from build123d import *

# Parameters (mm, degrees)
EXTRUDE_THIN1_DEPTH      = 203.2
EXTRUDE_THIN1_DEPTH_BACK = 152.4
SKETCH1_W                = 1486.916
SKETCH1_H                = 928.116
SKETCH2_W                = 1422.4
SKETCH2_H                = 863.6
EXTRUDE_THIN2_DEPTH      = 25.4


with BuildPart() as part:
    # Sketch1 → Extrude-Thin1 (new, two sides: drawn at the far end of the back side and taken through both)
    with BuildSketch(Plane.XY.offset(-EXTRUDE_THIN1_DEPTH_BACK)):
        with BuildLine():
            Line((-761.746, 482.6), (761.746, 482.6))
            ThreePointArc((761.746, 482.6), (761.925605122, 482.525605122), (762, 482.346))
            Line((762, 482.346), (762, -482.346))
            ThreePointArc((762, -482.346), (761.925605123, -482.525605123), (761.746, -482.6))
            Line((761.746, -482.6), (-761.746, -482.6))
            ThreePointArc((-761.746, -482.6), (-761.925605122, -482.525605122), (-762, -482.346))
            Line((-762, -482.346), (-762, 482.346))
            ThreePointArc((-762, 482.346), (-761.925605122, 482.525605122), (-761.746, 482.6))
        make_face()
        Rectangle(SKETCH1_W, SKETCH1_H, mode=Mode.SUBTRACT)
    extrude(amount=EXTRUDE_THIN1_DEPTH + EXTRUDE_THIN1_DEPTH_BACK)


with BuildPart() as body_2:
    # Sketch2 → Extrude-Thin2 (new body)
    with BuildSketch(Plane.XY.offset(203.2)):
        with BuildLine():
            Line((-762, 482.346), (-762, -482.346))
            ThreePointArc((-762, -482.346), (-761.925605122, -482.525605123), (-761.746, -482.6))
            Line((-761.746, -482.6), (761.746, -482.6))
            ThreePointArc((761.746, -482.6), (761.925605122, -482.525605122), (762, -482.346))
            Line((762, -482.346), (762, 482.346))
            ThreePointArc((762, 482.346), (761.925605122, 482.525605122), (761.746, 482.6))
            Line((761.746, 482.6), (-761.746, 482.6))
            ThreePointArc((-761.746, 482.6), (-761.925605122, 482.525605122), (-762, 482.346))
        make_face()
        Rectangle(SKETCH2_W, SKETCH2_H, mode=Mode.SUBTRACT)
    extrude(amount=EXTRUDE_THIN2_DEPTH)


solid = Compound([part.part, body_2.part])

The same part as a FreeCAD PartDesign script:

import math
import FreeCAD as App
import Part
import Sketcher
Q = App.Units.Quantity

doc = App.newDocument("Part")
body = doc.addObject("PartDesign::Body", "Body")

# Sketch on XY plane
sketch1 = body.newObject("Sketcher::SketchObject", "Sketch")
sketch1.AttachmentSupport = (doc.getObject("XY_Plane"), [""])
sketch1.MapMode = "FlatFace"
sketch1.addGeometry(Part.LineSegment(App.Vector(761.746, 482.6, 0), App.Vector(-761.746, 482.6, 0)), False)
sketch1.addGeometry(Part.ArcOfCircle(Part.Circle(App.Vector(-761.746, 482.346, 0), App.Vector(0, 0, 1), 0.254), math.radians(90), math.radians(180)), False)
sketch1.addGeometry(Part.LineSegment(App.Vector(-762, 482.346, 0), App.Vector(-762, -482.346, 0)), False)
sketch1.addGeometry(Part.ArcOfCircle(Part.Circle(App.Vector(-761.746, -482.346, 0), App.Vector(0, 0, 1), 0.254), math.radians(-180), math.radians(-90)), False)
sketch1.addGeometry(Part.LineSegment(App.Vector(-761.746, -482.6, 0), App.Vector(761.746, -482.6, 0)), False)
sketch1.addGeometry(Part.ArcOfCircle(Part.Circle(App.Vector(761.746, -482.346, 0), App.Vector(0, 0, 1), 0.254), math.radians(-90), math.radians(0)), False)
sketch1.addGeometry(Part.LineSegment(App.Vector(762, -482.346, 0), App.Vector(762, 482.346, 0)), False)
sketch1.addGeometry(Part.ArcOfCircle(Part.Circle(App.Vector(761.746, 482.346, 0), App.Vector(0, 0, 1), 0.254), math.radians(0), math.radians(90)), False)
sketch1.addGeometry(Part.LineSegment(App.Vector(-743.458, -464.058, 0), App.Vector(-743.458, 464.058, 0)), False)
sketch1.addGeometry(Part.LineSegment(App.Vector(-743.458, 464.058, 0), App.Vector(743.458, 464.058, 0)), False)
sketch1.addGeometry(Part.LineSegment(App.Vector(743.458, 464.058, 0), App.Vector(743.458, -464.058, 0)), False)
sketch1.addGeometry(Part.LineSegment(App.Vector(743.458, -464.058, 0), App.Vector(-743.458, -464.058, 0)), False)
sketch1.addConstraint(Sketcher.Constraint("Tangent", 0, 2, 1, 1))
sketch1.addConstraint(Sketcher.Constraint("Tangent", 1, 2, 2, 1))
sketch1.addConstraint(Sketcher.Constraint("Tangent", 2, 2, 3, 1))
sketch1.addConstraint(Sketcher.Constraint("Tangent", 3, 2, 4, 1))
sketch1.addConstraint(Sketcher.Constraint("Tangent", 4, 2, 5, 1))
sketch1.addConstraint(Sketcher.Constraint("Tangent", 5, 2, 6, 1))
sketch1.addConstraint(Sketcher.Constraint("Tangent", 6, 2, 7, 1))
sketch1.addConstraint(Sketcher.Constraint("Tangent", 7, 2, 0, 1))
sketch1.addConstraint(Sketcher.Constraint("Coincident", 8, 2, 9, 1))
sketch1.addConstraint(Sketcher.Constraint("Coincident", 9, 2, 10, 1))
sketch1.addConstraint(Sketcher.Constraint("Coincident", 10, 2, 11, 1))
sketch1.addConstraint(Sketcher.Constraint("Coincident", 11, 2, 8, 1))
sketch1.addConstraint(Sketcher.Constraint("Horizontal", 0))
sketch1.addConstraint(Sketcher.Constraint("Vertical", 2))
sketch1.addConstraint(Sketcher.Constraint("Horizontal", 4))
sketch1.addConstraint(Sketcher.Constraint("Vertical", 6))
sketch1.addConstraint(Sketcher.Constraint("Vertical", 8))
sketch1.addConstraint(Sketcher.Constraint("Horizontal", 9))
sketch1.addConstraint(Sketcher.Constraint("Vertical", 10))
sketch1.addConstraint(Sketcher.Constraint("Horizontal", 11))
sketch1.addConstraint(Sketcher.Constraint("Equal", 1, 3))
sketch1.addConstraint(Sketcher.Constraint("Equal", 3, 5))
sketch1.addConstraint(Sketcher.Constraint("Equal", 5, 7))
sketch1.addConstraint(Sketcher.Constraint("Symmetric", 1, 3, 5, 3, -1, 1))
sketch1.addConstraint(Sketcher.Constraint("Symmetric", 8, 2, 10, 2, -1, 1))
sketch1.addConstraint(Sketcher.Constraint("Radius", 1, Q("0.01 in")))
sketch1.addConstraint(Sketcher.Constraint("DistanceY", -1, 1, 0, 2, Q("19 in")))
sketch1.addConstraint(Sketcher.Constraint("DistanceX", 1, 2, -1, 1, Q("30 in")))
sketch1.addConstraint(Sketcher.Constraint("DistanceX", 9, 1, 9, 2, Q("58.54 in")))
sketch1.addConstraint(Sketcher.Constraint("DistanceY", 8, 1, 8, 2, Q("36.54 in")))
pad1 = body.newObject("PartDesign::Pad", "Pad")
pad1.Profile = sketch1
pad1.Type = "TwoLengths"
pad1.Length = Q("8 in")
pad1.Length2 = Q("6 in")
body2 = doc.addObject("PartDesign::Body", "Body001")

# Sketch on XY plane
sketch2 = body2.newObject("Sketcher::SketchObject", "Sketch001")
sketch2.AttachmentSupport = (doc.getObject("XY_Plane001"), [""])
sketch2.MapMode = "FlatFace"
sketch2.AttachmentOffset = App.Placement(App.Vector(0, 0, 8 * 25.4), App.Rotation())
sketch2.addGeometry(Part.LineSegment(App.Vector(-762, 482.346, 0), App.Vector(-762, -482.346, 0)), False)
sketch2.addGeometry(Part.ArcOfCircle(Part.Circle(App.Vector(-761.746, -482.346, 0), App.Vector(0, 0, 1), 0.254), math.radians(180), math.radians(270)), False)
sketch2.addGeometry(Part.LineSegment(App.Vector(-761.746, -482.6, 0), App.Vector(761.746, -482.6, 0)), False)
sketch2.addGeometry(Part.ArcOfCircle(Part.Circle(App.Vector(761.746, -482.346, 0), App.Vector(0, 0, 1), 0.254), math.radians(-90), math.radians(0)), False)
sketch2.addGeometry(Part.LineSegment(App.Vector(762, -482.346, 0), App.Vector(762, 482.346, 0)), False)
sketch2.addGeometry(Part.ArcOfCircle(Part.Circle(App.Vector(761.746, 482.346, 0), App.Vector(0, 0, 1), 0.254), math.radians(0), math.radians(90)), False)
sketch2.addGeometry(Part.LineSegment(App.Vector(761.746, 482.6, 0), App.Vector(-761.746, 482.6, 0)), False)
sketch2.addGeometry(Part.ArcOfCircle(Part.Circle(App.Vector(-761.746, 482.346, 0), App.Vector(0, 0, 1), 0.254), math.radians(90), math.radians(180)), False)
sketch2.addGeometry(Part.LineSegment(App.Vector(711.2, -431.8, 0), App.Vector(-711.2, -431.8, 0)), False)
sketch2.addGeometry(Part.LineSegment(App.Vector(-711.2, -431.8, 0), App.Vector(-711.2, 431.8, 0)), False)
sketch2.addGeometry(Part.LineSegment(App.Vector(-711.2, 431.8, 0), App.Vector(711.2, 431.8, 0)), False)
sketch2.addGeometry(Part.LineSegment(App.Vector(711.2, 431.8, 0), App.Vector(711.2, -431.8, 0)), False)
sketch2.addConstraint(Sketcher.Constraint("Tangent", 0, 2, 1, 1))
sketch2.addConstraint(Sketcher.Constraint("Tangent", 1, 2, 2, 1))
sketch2.addConstraint(Sketcher.Constraint("Tangent", 2, 2, 3, 1))
sketch2.addConstraint(Sketcher.Constraint("Tangent", 3, 2, 4, 1))
sketch2.addConstraint(Sketcher.Constraint("Tangent", 4, 2, 5, 1))
sketch2.addConstraint(Sketcher.Constraint("Tangent", 5, 2, 6, 1))
sketch2.addConstraint(Sketcher.Constraint("Tangent", 6, 2, 7, 1))
sketch2.addConstraint(Sketcher.Constraint("Tangent", 7, 2, 0, 1))
sketch2.addConstraint(Sketcher.Constraint("Coincident", 8, 2, 9, 1))
sketch2.addConstraint(Sketcher.Constraint("Coincident", 9, 2, 10, 1))
sketch2.addConstraint(Sketcher.Constraint("Coincident", 10, 2, 11, 1))
sketch2.addConstraint(Sketcher.Constraint("Coincident", 11, 2, 8, 1))
sketch2.addConstraint(Sketcher.Constraint("Vertical", 0))
sketch2.addConstraint(Sketcher.Constraint("Horizontal", 2))
sketch2.addConstraint(Sketcher.Constraint("Vertical", 4))
sketch2.addConstraint(Sketcher.Constraint("Horizontal", 6))
sketch2.addConstraint(Sketcher.Constraint("Horizontal", 8))
sketch2.addConstraint(Sketcher.Constraint("Vertical", 9))
sketch2.addConstraint(Sketcher.Constraint("Horizontal", 10))
sketch2.addConstraint(Sketcher.Constraint("Vertical", 11))
sketch2.addConstraint(Sketcher.Constraint("Equal", 1, 3))
sketch2.addConstraint(Sketcher.Constraint("Equal", 3, 5))
sketch2.addConstraint(Sketcher.Constraint("Equal", 5, 7))
sketch2.addConstraint(Sketcher.Constraint("Symmetric", 1, 3, 5, 3, -1, 1))
sketch2.addConstraint(Sketcher.Constraint("Symmetric", 8, 2, 10, 2, -1, 1))
sketch2.addConstraint(Sketcher.Constraint("DistanceX", 8, 2, 8, 1, Q("56 in")))
sketch2.addConstraint(Sketcher.Constraint("DistanceY", 9, 1, 9, 2, Q("34 in")))
sketch2.addConstraint(Sketcher.Constraint("Radius", 1, Q("0.01 in")))
sketch2.addConstraint(Sketcher.Constraint("DistanceX", 0, 2, -1, 1, Q("30 in")))
sketch2.addConstraint(Sketcher.Constraint("DistanceY", 1, 2, -1, 1, Q("19 in")))
pad2 = body2.newObject("PartDesign::Pad", "Pad001")
pad2.Profile = sketch2
pad2.Length = Q("1 in")

doc.recompute()
